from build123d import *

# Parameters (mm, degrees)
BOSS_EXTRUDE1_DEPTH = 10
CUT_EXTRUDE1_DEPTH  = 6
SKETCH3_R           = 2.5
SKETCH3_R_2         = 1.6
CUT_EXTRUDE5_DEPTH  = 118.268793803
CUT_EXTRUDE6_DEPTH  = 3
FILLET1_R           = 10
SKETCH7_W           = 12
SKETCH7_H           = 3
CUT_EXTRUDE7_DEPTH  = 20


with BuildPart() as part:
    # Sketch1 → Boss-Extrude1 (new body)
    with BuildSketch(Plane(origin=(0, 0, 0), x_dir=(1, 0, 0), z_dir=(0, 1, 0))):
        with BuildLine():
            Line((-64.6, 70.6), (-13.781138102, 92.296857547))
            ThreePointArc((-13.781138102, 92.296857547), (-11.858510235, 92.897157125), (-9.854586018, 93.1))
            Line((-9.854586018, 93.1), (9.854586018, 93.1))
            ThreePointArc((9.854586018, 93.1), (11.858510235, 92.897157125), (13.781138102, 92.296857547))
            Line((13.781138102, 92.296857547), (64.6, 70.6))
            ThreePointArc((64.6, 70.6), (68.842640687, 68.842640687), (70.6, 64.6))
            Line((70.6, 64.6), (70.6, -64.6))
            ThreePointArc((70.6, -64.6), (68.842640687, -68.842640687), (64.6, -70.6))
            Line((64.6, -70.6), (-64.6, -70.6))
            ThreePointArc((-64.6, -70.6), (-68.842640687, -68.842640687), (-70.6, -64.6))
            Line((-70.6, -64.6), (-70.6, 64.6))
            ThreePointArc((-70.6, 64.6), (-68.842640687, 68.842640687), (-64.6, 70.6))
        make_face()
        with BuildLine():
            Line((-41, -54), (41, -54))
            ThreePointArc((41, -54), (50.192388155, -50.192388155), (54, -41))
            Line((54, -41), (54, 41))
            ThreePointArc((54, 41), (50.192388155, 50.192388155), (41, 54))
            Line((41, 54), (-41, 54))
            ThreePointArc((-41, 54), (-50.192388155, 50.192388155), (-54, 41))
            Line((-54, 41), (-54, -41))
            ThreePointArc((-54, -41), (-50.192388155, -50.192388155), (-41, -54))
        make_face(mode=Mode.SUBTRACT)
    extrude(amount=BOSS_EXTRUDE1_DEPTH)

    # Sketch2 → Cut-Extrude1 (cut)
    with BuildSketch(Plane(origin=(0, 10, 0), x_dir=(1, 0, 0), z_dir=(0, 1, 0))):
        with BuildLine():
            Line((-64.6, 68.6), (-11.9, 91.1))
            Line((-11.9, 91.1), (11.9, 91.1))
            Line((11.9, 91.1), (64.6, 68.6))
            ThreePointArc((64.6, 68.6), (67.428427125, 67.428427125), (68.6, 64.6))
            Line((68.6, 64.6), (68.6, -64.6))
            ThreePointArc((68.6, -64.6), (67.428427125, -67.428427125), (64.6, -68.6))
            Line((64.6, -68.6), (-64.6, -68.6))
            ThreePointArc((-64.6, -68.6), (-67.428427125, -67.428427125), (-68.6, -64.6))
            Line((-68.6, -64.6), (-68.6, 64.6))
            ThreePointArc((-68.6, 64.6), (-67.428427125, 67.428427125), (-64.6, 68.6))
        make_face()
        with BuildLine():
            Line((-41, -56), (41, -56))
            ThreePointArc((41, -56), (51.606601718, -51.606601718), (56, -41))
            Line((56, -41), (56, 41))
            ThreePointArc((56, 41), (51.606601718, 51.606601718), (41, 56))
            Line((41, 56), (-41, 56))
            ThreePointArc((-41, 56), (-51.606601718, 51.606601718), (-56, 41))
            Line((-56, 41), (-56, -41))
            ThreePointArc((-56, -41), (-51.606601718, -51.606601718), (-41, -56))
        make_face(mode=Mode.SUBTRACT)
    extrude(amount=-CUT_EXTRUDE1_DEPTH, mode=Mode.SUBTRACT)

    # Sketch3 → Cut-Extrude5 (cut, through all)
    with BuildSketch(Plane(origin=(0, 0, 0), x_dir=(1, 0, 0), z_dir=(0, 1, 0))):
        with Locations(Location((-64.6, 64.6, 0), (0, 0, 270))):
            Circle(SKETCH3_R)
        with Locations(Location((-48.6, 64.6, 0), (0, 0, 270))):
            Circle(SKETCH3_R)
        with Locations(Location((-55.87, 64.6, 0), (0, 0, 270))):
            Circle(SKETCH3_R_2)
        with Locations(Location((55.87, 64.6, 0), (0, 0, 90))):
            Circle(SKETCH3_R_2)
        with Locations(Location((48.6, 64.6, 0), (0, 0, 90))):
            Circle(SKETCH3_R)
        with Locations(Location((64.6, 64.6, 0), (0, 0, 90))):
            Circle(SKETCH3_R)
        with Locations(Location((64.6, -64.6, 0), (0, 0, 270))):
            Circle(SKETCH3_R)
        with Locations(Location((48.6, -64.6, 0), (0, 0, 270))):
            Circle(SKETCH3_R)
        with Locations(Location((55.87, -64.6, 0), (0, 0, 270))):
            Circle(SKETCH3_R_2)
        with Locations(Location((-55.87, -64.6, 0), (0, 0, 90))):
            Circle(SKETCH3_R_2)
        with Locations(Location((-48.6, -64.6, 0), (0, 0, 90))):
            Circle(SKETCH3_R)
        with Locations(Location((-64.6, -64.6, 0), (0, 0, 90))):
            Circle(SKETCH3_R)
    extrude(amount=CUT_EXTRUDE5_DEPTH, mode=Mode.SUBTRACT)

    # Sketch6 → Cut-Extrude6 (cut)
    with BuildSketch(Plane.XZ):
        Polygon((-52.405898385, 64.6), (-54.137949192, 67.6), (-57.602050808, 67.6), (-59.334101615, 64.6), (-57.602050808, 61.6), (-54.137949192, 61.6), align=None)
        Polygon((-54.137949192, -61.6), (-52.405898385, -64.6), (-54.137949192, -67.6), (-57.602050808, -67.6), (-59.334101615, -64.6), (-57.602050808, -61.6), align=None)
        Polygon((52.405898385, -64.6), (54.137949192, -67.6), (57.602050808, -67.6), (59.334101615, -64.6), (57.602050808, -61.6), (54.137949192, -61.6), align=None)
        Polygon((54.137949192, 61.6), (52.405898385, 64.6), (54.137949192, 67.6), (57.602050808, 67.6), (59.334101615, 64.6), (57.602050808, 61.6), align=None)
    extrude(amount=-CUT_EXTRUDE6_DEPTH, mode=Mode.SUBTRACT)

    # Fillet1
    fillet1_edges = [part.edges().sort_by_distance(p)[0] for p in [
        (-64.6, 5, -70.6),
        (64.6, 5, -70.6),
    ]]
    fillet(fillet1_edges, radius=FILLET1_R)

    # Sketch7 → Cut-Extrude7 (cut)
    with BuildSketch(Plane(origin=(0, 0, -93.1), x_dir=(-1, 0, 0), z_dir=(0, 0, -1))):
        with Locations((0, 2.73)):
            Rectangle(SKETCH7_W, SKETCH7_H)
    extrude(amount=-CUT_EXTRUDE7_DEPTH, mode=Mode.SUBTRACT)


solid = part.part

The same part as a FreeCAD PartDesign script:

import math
import FreeCAD as App
import Part
import Sketcher
Q = App.Units.Quantity


def edges_at(feature, points):
    """Names of the edges that pass closest to the given points."""
    edges = feature.Shape.Edges
    near = lambda p: min(range(len(edges)), key=lambda i: edges[i].distToShape(Part.Vertex(*p))[0])
    return sorted({f"Edge{near(p) + 1}" for p in points})


def add_polygon(sketch, points):
    """Adds a closed chain of lines whose ends are joined by coincident constraints."""
    first, n = sketch.GeometryCount, len(points)
    for a, b in zip(points, points[1:] + points[:1]):
        sketch.addGeometry(Part.LineSegment(App.Vector(*a, 0), App.Vector(*b, 0)), False)
    for i in range(n):
        sketch.addConstraint(Sketcher.Constraint("Coincident", first + i, 2, first + (i + 1) % n, 1))

doc = App.newDocument("Part")
params = doc.addObject("Spreadsheet::Sheet", "Params")
for row, (alias, value) in enumerate([
    ("sketch1_radius", "6 mm"),
    ("sketch1_radius2", "10 mm"),
    ("sketch1_radius3", "13 mm"),
    ("sketch1_width", "82 mm"),
    ("sketch1_width2", "129.2 mm"),
    ("pad1_length", "10 mm"),
    ("sketch2_radius", "4 mm"),
    ("sketch2_radius2", "15 mm"),
    ("sketch2_width", "82 mm"),
    ("sketch2_width2", "129.2 mm"),
    ("sketch2_width3", "23.8 mm"),
    ("pocket1_length", "6 mm"),
    ("sketch3_diameter", "5 mm"),
    ("sketch3_diameter2", "3.2 mm"),
    ("pocket3_length", "3 mm"),
    ("fillet_radius", "10 mm"),
    ("sketch5_width", "12 mm"),
    ("sketch5_height", "3 mm"),
    ("pocket4_length", "20 mm"),
], start=1):
    params.set(f"A{row}", alias)
    params.set(f"B{row}", "=" + value)
    params.setAlias(f"B{row}", alias)

body = doc.addObject("PartDesign::Body", "Body")

# Sketch on XZ plane
sketch1 = doc.addObject("Sketcher::SketchObject", "Sketch")
body.addObject(sketch1)
sketch1.AttachmentSupport = (doc.XZ_Plane, [""])
sketch1.MapMode = "FlatFace"
sketch1.addGeometry([
    Part.LineSegment(App.Vector(-13.781138, -92.296858, 0), App.Vector(-64.6, -70.6, 0)),  # 0
    Part.ArcOfCircle(Part.Circle(App.Vector(-64.6, -64.6, 0), App.Vector(0, 0, 1), 6), math.radians(180), math.radians(270)),  # 1
    Part.LineSegment(App.Vector(-70.6, -64.6, 0), App.Vector(-70.6, 64.6, 0)),  # 2
    Part.ArcOfCircle(Part.Circle(App.Vector(-64.6, 64.6, 0), App.Vector(0, 0, 1), 6), math.radians(90), math.radians(180)),  # 3
    Part.LineSegment(App.Vector(-64.6, 70.6, 0), App.Vector(64.6, 70.6, 0)),  # 4
    Part.ArcOfCircle(Part.Circle(App.Vector(64.6, 64.6, 0), App.Vector(0, 0, 1), 6), math.radians(0), math.radians(90)),  # 5
    Part.LineSegment(App.Vector(70.6, 64.6, 0), App.Vector(70.6, -64.6, 0)),  # 6
    Part.ArcOfCircle(Part.Circle(App.Vector(64.6, -64.6, 0), App.Vector(0, 0, 1), 6), math.radians(-90), math.radians(0)),  # 7
    Part.LineSegment(App.Vector(64.6, -70.6, 0), App.Vector(13.781138, -92.296858, 0)),  # 8
    Part.ArcOfCircle(Part.Circle(App.Vector(9.854586, -83.1, 0), App.Vector(0, 0, 1), 10), math.radians(-90), math.radians(-66.880185)),  # 9
    Part.LineSegment(App.Vector(9.854586, -93.1, 0), App.Vector(-9.854586, -93.1, 0)),  # 10
    Part.ArcOfCircle(Part.Circle(App.Vector(-9.854586, -83.1, 0), App.Vector(0, 0, 1), 10), math.radians(-113.119815), math.radians(-90)),  # 11
    Part.ArcOfCircle(Part.Circle(App.Vector(-41, 41, 0), App.Vector(0, 0, 1), 13), math.radians(90), math.radians(180)),  # 12
    Part.LineSegment(App.Vector(-54, 41, 0), App.Vector(-54, -41, 0)),  # 13
    Part.ArcOfCircle(Part.Circle(App.Vector(-41, -41, 0), App.Vector(0, 0, 1), 13), math.radians(-180), math.radians(-90)),  # 14
    Part.LineSegment(App.Vector(-41, -54, 0), App.Vector(41, -54, 0)),  # 15
    Part.ArcOfCircle(Part.Circle(App.Vector(41, -41, 0), App.Vector(0, 0, 1), 13), math.radians(-90), math.radians(0)),  # 16
    Part.LineSegment(App.Vector(54, -41, 0), App.Vector(54, 41, 0)),  # 17
    Part.ArcOfCircle(Part.Circle(App.Vector(41, 41, 0), App.Vector(0, 0, 1), 13), math.radians(0), math.radians(90)),  # 18
    Part.LineSegment(App.Vector(41, 54, 0), App.Vector(-41, 54, 0)),  # 19
], False)
sketch1.addConstraint([
    Sketcher.Constraint("Coincident", 0, 2, 1, 2),
    Sketcher.Constraint("Tangent", 1, 1, 2, 1),
    Sketcher.Constraint("Tangent", 2, 2, 3, 2),
    Sketcher.Constraint("Tangent", 3, 1, 4, 1),
    Sketcher.Constraint("Tangent", 4, 2, 5, 2),
    Sketcher.Constraint("Tangent", 5, 1, 6, 1),
    Sketcher.Constraint("Tangent", 6, 2, 7, 2),
    Sketcher.Constraint("Coincident", 7, 1, 8, 1),
    Sketcher.Constraint("Tangent", 8, 2, 9, 2),
    Sketcher.Constraint("Tangent", 9, 1, 10, 1),
    Sketcher.Constraint("Tangent", 10, 2, 11, 2),
    Sketcher.Constraint("Tangent", 11, 1, 0, 1),
    Sketcher.Constraint("Tangent", 12, 2, 13, 1),
    Sketcher.Constraint("Tangent", 13, 2, 14, 1),
    Sketcher.Constraint("Tangent", 14, 2, 15, 1),
    Sketcher.Constraint("Tangent", 15, 2, 16, 1),
    Sketcher.Constraint("Tangent", 16, 2, 17, 1),
    Sketcher.Constraint("Tangent", 17, 2, 18, 1),
    Sketcher.Constraint("Tangent", 18, 2, 19, 1),
    Sketcher.Constraint("Tangent", 19, 2, 12, 1),
    Sketcher.Constraint("Vertical", 2),
    Sketcher.Constraint("Horizontal", 4),
    Sketcher.Constraint("Vertical", 6),
    Sketcher.Constraint("Horizontal", 10),
    Sketcher.Constraint("Vertical", 13),
    Sketcher.Constraint("Horizontal", 15),
    Sketcher.Constraint("Vertical", 17),
    Sketcher.Constraint("Horizontal", 19),
    Sketcher.Constraint("Equal", 1, 3),
    Sketcher.Constraint("Equal", 3, 5),
    Sketcher.Constraint("Equal", 5, 7),
    Sketcher.Constraint("Equal", 9, 11),
    Sketcher.Constraint("Equal", 12, 14),
    Sketcher.Constraint("Equal", 14, 16),
    Sketcher.Constraint("Equal", 16, 18),
    Sketcher.Constraint("Symmetric", 1, 3, 5, 3, -1, 1),
    Sketcher.Constraint("Symmetric", 12, 3, 16, 3, -1, 1),
    Sketcher.Constraint("Symmetric", 3, 1, 7, 1, -1, 1),
    Sketcher.Constraint("Symmetric", 8, 2, 11, 1, -2),
    Sketcher.Constraint("Equal", 4, 2),
    Sketcher.Constraint("Equal", 19, 13),
    Sketcher.Constraint("Radius", 1, 6.0),
    Sketcher.Constraint("Radius", 9, 10.0),
    Sketcher.Constraint("Radius", 12, 13.0),
    Sketcher.Constraint("DistanceX", 15, 1, 15, 2, 82.0),
    Sketcher.Constraint("DistanceX", 4, 1, 4, 2, 129.2),
    Sketcher.Constraint("DistanceY", 9, 3, -1, 1, 83.1),
    Sketcher.Constraint("DistanceX", 10, 2, 10, 1, 19.709172),
])
sketch1.setExpression("Constraints[41]", "Params.sketch1_radius")
sketch1.setExpression("Constraints[42]", "Params.sketch1_radius2")
sketch1.setExpression("Constraints[43]", "Params.sketch1_radius3")
sketch1.setExpression("Constraints[44]", "Params.sketch1_width")
sketch1.setExpression("Constraints[45]", "Params.sketch1_width2")
pad1 = doc.addObject("PartDesign::Pad", "Pad")
body.addObject(pad1)
pad1.Profile = sketch1
pad1.setExpression("Length", "Params.pad1_length")
pad1.Reversed = True

# Sketch on XZ plane
sketch2 = doc.addObject("Sketcher::SketchObject", "Sketch001")
body.addObject(sketch2)
sketch2.AttachmentSupport = (doc.XZ_Plane, [""])
sketch2.MapMode = "FlatFace"
sketch2.AttachmentOffset = App.Placement(App.Vector(0, 0, -10), App.Rotation())
sketch2.addGeometry([
    Part.LineSegment(App.Vector(-11.9, -91.1, 0), App.Vector(-64.6, -68.6, 0)),  # 0
    Part.ArcOfCircle(Part.Circle(App.Vector(-64.6, -64.6, 0), App.Vector(0, 0, 1), 4), math.radians(180), math.radians(270)),  # 1
    Part.LineSegment(App.Vector(-68.6, -64.6, 0), App.Vector(-68.6, 64.6, 0)),  # 2
    Part.ArcOfCircle(Part.Circle(App.Vector(-64.6, 64.6, 0), App.Vector(0, 0, 1), 4), math.radians(90), math.radians(180)),  # 3
    Part.LineSegment(App.Vector(-64.6, 68.6, 0), App.Vector(64.6, 68.6, 0)),  # 4
    Part.ArcOfCircle(Part.Circle(App.Vector(64.6, 64.6, 0), App.Vector(0, 0, 1), 4), math.radians(0), math.radians(90)),  # 5
    Part.LineSegment(App.Vector(68.6, 64.6, 0), App.Vector(68.6, -64.6, 0)),  # 6
    Part.ArcOfCircle(Part.Circle(App.Vector(64.6, -64.6, 0), App.Vector(0, 0, 1), 4), math.radians(-90), math.radians(0)),  # 7
    Part.LineSegment(App.Vector(64.6, -68.6, 0), App.Vector(11.9, -91.1, 0)),  # 8
    Part.LineSegment(App.Vector(11.9, -91.1, 0), App.Vector(-11.9, -91.1, 0)),  # 9
    Part.ArcOfCircle(Part.Circle(App.Vector(-41, 41, 0), App.Vector(0, 0, 1), 15), math.radians(90), math.radians(180)),  # 10
    Part.LineSegment(App.Vector(-56, 41, 0), App.Vector(-56, -41, 0)),  # 11
    Part.ArcOfCircle(Part.Circle(App.Vector(-41, -41, 0), App.Vector(0, 0, 1), 15), math.radians(180), math.radians(270)),  # 12
    Part.LineSegment(App.Vector(-41, -56, 0), App.Vector(41, -56, 0)),  # 13
    Part.ArcOfCircle(Part.Circle(App.Vector(41, -41, 0), App.Vector(0, 0, 1), 15), math.radians(-90), math.radians(0)),  # 14
    Part.LineSegment(App.Vector(56, -41, 0), App.Vector(56, 41, 0)),  # 15
    Part.ArcOfCircle(Part.Circle(App.Vector(41, 41, 0), App.Vector(0, 0, 1), 15), math.radians(0), math.radians(90)),  # 16
    Part.LineSegment(App.Vector(41, 56, 0), App.Vector(-41, 56, 0)),  # 17
], False)
sketch2.addConstraint([
    Sketcher.Constraint("Coincident", 0, 2, 1, 2),
    Sketcher.Constraint("Tangent", 1, 1, 2, 1),
    Sketcher.Constraint("Tangent", 2, 2, 3, 2),
    Sketcher.Constraint("Tangent", 3, 1, 4, 1),
    Sketcher.Constraint("Tangent", 4, 2, 5, 2),
    Sketcher.Constraint("Tangent", 5, 1, 6, 1),
    Sketcher.Constraint("Tangent", 6, 2, 7, 2),
    Sketcher.Constraint("Coincident", 7, 1, 8, 1),
    Sketcher.Constraint("Coincident", 8, 2, 9, 1),
    Sketcher.Constraint("Coincident", 9, 2, 0, 1),
    Sketcher.Constraint("Tangent", 10, 2, 11, 1),
    Sketcher.Constraint("Tangent", 11, 2, 12, 1),
    Sketcher.Constraint("Tangent", 12, 2, 13, 1),
    Sketcher.Constraint("Tangent", 13, 2, 14, 1),
    Sketcher.Constraint("Tangent", 14, 2, 15, 1),
    Sketcher.Constraint("Tangent", 15, 2, 16, 1),
    Sketcher.Constraint("Tangent", 16, 2, 17, 1),
    Sketcher.Constraint("Tangent", 17, 2, 10, 1),
    Sketcher.Constraint("Vertical", 2),
    Sketcher.Constraint("Horizontal", 4),
    Sketcher.Constraint("Vertical", 6),
    Sketcher.Constraint("Horizontal", 9),
    Sketcher.Constraint("Vertical", 11),
    Sketcher.Constraint("Horizontal", 13),
    Sketcher.Constraint("Vertical", 15),
    Sketcher.Constraint("Horizontal", 17),
    Sketcher.Constraint("Equal", 1, 3),
    Sketcher.Constraint("Equal", 3, 5),
    Sketcher.Constraint("Equal", 5, 7),
    Sketcher.Constraint("Equal", 10, 12),
    Sketcher.Constraint("Equal", 12, 14),
    Sketcher.Constraint("Equal", 14, 16),
    Sketcher.Constraint("Symmetric", 1, 3, 5, 3, -1, 1),
    Sketcher.Constraint("Symmetric", 10, 3, 14, 3, -1, 1),
    Sketcher.Constraint("Symmetric", 3, 1, 7, 1, -1, 1),
    Sketcher.Constraint("Vertical", 3, 3, 0, 2),
    Sketcher.Constraint("Equal", 4, 2),
    Sketcher.Constraint("Equal", 17, 11),
    Sketcher.Constraint("Equal", 0, 8),
    Sketcher.Constraint("Radius", 1, 4.0),
    Sketcher.Constraint("Radius", 10, 15.0),
    Sketcher.Constraint("DistanceX", 13, 1, 13, 2, 82.0),
    Sketcher.Constraint("DistanceX", 4, 1, 4, 2, 129.2),
    Sketcher.Constraint("DistanceX", 9, 2, 9, 1, 23.8),
    Sketcher.Constraint("DistanceY", 8, 2, -1, 1, 91.1),
])
sketch2.setExpression("Constraints[39]", "Params.sketch2_radius")
sketch2.setExpression("Constraints[40]", "Params.sketch2_radius2")
sketch2.setExpression("Constraints[41]", "Params.sketch2_width")
sketch2.setExpression("Constraints[42]", "Params.sketch2_width2")
sketch2.setExpression("Constraints[43]", "Params.sketch2_width3")
pocket1 = doc.addObject("PartDesign::Pocket", "Pocket")
body.addObject(pocket1)
pocket1.Profile = sketch2
pocket1.setExpression("Length", "Params.pocket1_length")
pocket1.Reversed = True

# Sketch on XZ plane
sketch3 = doc.addObject("Sketcher::SketchObject", "Sketch002")
body.addObject(sketch3)
sketch3.AttachmentSupport = (doc.XZ_Plane, [""])
sketch3.MapMode = "FlatFace"
sketch3.addGeometry([
    Part.Circle(App.Vector(-64.6, -64.6, 0), App.Vector(0, 0, 1), 2.5),  # 0
    Part.Circle(App.Vector(-48.6, -64.6, 0), App.Vector(0, 0, 1), 2.5),  # 1
    Part.Circle(App.Vector(-55.87, -64.6, 0), App.Vector(0, 0, 1), 1.6),  # 2
    Part.Circle(App.Vector(55.87, -64.6, 0), App.Vector(0, 0, 1), 1.6),  # 3
    Part.Circle(App.Vector(48.6, -64.6, 0), App.Vector(0, 0, 1), 2.5),  # 4
    Part.Circle(App.Vector(64.6, -64.6, 0), App.Vector(0, 0, 1), 2.5),  # 5
    Part.Circle(App.Vector(64.6, 64.6, 0), App.Vector(0, 0, 1), 2.5),  # 6
    Part.Circle(App.Vector(48.6, 64.6, 0), App.Vector(0, 0, 1), 2.5),  # 7
    Part.Circle(App.Vector(55.87, 64.6, 0), App.Vector(0, 0, 1), 1.6),  # 8
    Part.Circle(App.Vector(-55.87, 64.6, 0), App.Vector(0, 0, 1), 1.6),  # 9
    Part.Circle(App.Vector(-48.6, 64.6, 0), App.Vector(0, 0, 1), 2.5),  # 10
    Part.Circle(App.Vector(-64.6, 64.6, 0), App.Vector(0, 0, 1), 2.5),  # 11
], False)
sketch3.addConstraint([
    Sketcher.Constraint("Equal", 0, 1),
    Sketcher.Constraint("Equal", 2, 3),
    Sketcher.Constraint("Equal", 1, 4),
    Sketcher.Constraint("Equal", 4, 5),
    Sketcher.Constraint("Equal", 5, 6),
    Sketcher.Constraint("Equal", 6, 7),
    Sketcher.Constraint("Equal", 3, 8),
    Sketcher.Constraint("Equal", 8, 9),
    Sketcher.Constraint("Equal", 7, 10),
    Sketcher.Constraint("Equal", 10, 11),
    Sketcher.Constraint("Symmetric", 0, 3, 6, 3, -1, 1),
    Sketcher.Constraint("Symmetric", 1, 3, 7, 3, -1, 1),
    Sketcher.Constraint("Symmetric", 2, 3, 8, 3, -1, 1),
    Sketcher.Constraint("Symmetric", 3, 3, 9, 3, -1, 1),
    Sketcher.Constraint("Symmetric", 4, 3, 10, 3, -1, 1),
    Sketcher.Constraint("Symmetric", 5, 3, 11, 3, -1, 1),
    Sketcher.Constraint("Symmetric", 2, 3, 3, 3, -2),
    Sketcher.Constraint("Symmetric", 1, 3, 4, 3, -2),
    Sketcher.Constraint("Symmetric", 0, 3, 5, 3, -2),
    Sketcher.Constraint("Horizontal", 0, 3, 1, 3),
    Sketcher.Constraint("Horizontal", 1, 3, 2, 3),
    Sketcher.Constraint("Diameter", 0, 5.0),
    Sketcher.Constraint("Diameter", 2, 3.2),
    Sketcher.Constraint("DistanceX", 0, 3, 1, 3, 16.0),
    Sketcher.Constraint("DistanceX", 0, 3, -1, 1, 64.6),
    Sketcher.Constraint("DistanceY", 0, 3, -1, 1, 64.6),
    Sketcher.Constraint("DistanceX", 2, 3, -1, 1, 55.87),
])
sketch3.setExpression("Constraints[21]", "Params.sketch3_diameter")
sketch3.setExpression("Constraints[22]", "Params.sketch3_diameter2")
pocket2 = doc.addObject("PartDesign::Pocket", "Pocket001")
body.addObject(pocket2)
pocket2.Profile = sketch3
pocket2.Type = "ThroughAll"

# Sketch on XZ plane
sketch4 = doc.addObject("Sketcher::SketchObject", "Sketch003")
body.addObject(sketch4)
sketch4.AttachmentSupport = (doc.XZ_Plane, [""])
sketch4.MapMode = "FlatFace"
add_polygon(sketch4, [(-52.405898, 64.6), (-54.137949, 67.6), (-57.602051, 67.6), (-59.334102, 64.6), (-57.602051, 61.6), (-54.137949, 61.6)])  # lines 0-5
add_polygon(sketch4, [(-52.405898, -64.6), (-54.137949, -61.6), (-57.602051, -61.6), (-59.334102, -64.6), (-57.602051, -67.6), (-54.137949, -67.6)])  # lines 6-11
add_polygon(sketch4, [(52.405898, -64.6), (54.137949, -67.6), (57.602051, -67.6), (59.334102, -64.6), (57.602051, -61.6), (54.137949, -61.6)])  # lines 12-17
add_polygon(sketch4, [(52.405898, 64.6), (54.137949, 61.6), (57.602051, 61.6), (59.334102, 64.6), (57.602051, 67.6), (54.137949, 67.6)])  # lines 18-23
sketch4.addConstraint([
    Sketcher.Constraint("Horizontal", 1),
    Sketcher.Constraint("Horizontal", 4),
    Sketcher.Constraint("Horizontal", 7),
    Sketcher.Constraint("Horizontal", 10),
    Sketcher.Constraint("Horizontal", 13),
    Sketcher.Constraint("Horizontal", 16),
    Sketcher.Constraint("Horizontal", 19),
    Sketcher.Constraint("Horizontal", 22),
    Sketcher.Constraint("Symmetric", 0, 2, 12, 2, -1, 1),
    Sketcher.Constraint("Symmetric", 2, 2, 14, 2, -1, 1),
    Sketcher.Constraint("Symmetric", 3, 2, 15, 2, -1, 1),
    Sketcher.Constraint("Symmetric", 5, 2, 17, 2, -1, 1),
    Sketcher.Constraint("Symmetric", 6, 2, 18, 2, -1, 1),
    Sketcher.Constraint("Symmetric", 8, 2, 20, 2, -1, 1),
    Sketcher.Constraint("Symmetric", 9, 2, 21, 2, -1, 1),
    Sketcher.Constraint("Symmetric", 11, 2, 23, 2, -1, 1),
    Sketcher.Constraint("Symmetric", 10, 2, 12, 2, -2),
    Sketcher.Constraint("Symmetric", 8, 2, 14, 2, -2),
    Sketcher.Constraint("Symmetric", 7, 2, 15, 2, -2),
    Sketcher.Constraint("Symmetric", 11, 2, 17, 2, -2),
    Sketcher.Constraint("Parallel", 0, 3),
    Sketcher.Constraint("Parallel", 2, 5),
    Sketcher.Constraint("Parallel", 3, 6),
    Sketcher.Constraint("Parallel", 5, 8),
    Sketcher.Constraint("Parallel", 6, 9),
    Sketcher.Constraint("Parallel", 11, 14),
    Sketcher.Constraint("Parallel", 14, 17),
    Sketcher.Constraint("Parallel", 17, 20),
    Sketcher.Constraint("Parallel", 20, 23),
    Sketcher.Constraint("Horizontal", 2, 2, 5, 2),
    Sketcher.Constraint("Vertical", 1, 2, 3, 2),
    Sketcher.Constraint("Angle", 0, Q("120 deg")),
    Sketcher.Constraint("DistanceY", 2, 2, 1, 2, 3.0),
    Sketcher.Constraint("DistanceY", -1, 1, 0, 2, 67.6),
    Sketcher.Constraint("DistanceX", 9, 2, 12, 2, 111.74),
    Sketcher.Constraint("DistanceX", 1, 2, 1, 1, 3.464102),
])
pocket3 = doc.addObject("PartDesign::Pocket", "Pocket002")
body.addObject(pocket3)
pocket3.Profile = sketch4
pocket3.setExpression("Length", "Params.pocket3_length")
doc.recompute()

fillet = doc.addObject("PartDesign::Fillet", "Fillet")
body.addObject(fillet)
fillet.Base = (pocket3, edges_at(pocket3, [(-64.6, 5, -70.6), (64.6, 5, -70.6)]))
fillet.setExpression("Radius", "Params.fillet_radius")

# Sketch on XY plane
sketch5 = doc.addObject("Sketcher::SketchObject", "Sketch004")
body.addObject(sketch5)
sketch5.AttachmentSupport = (doc.XY_Plane, [""])
sketch5.MapMode = "FlatFace"
sketch5.AttachmentOffset = App.Placement(App.Vector(0, 0, -93.1), App.Rotation())
add_polygon(sketch5, [(6, 4.23), (6, 1.23), (-6, 1.23), (-6, 4.23)])  # lines 0-3
sketch5.addConstraint([
    Sketcher.Constraint("Vertical", 0),
    Sketcher.Constraint("Horizontal", 1),
    Sketcher.Constraint("Vertical", 2),
    Sketcher.Constraint("Horizontal", 3),
    Sketcher.Constraint("DistanceX", 1, 2, 1, 1, 12.0),
    Sketcher.Constraint("DistanceY", 0, 2, 0, 1, 3.0),
    Sketcher.Constraint("DistanceX", -1, 1, 0, 2, 6.0),
    Sketcher.Constraint("DistanceY", -1, 1, 0, 2, 1.23),
])
sketch5.setExpression("Constraints[8]", "Params.sketch5_width")
sketch5.setExpression("Constraints[9]", "Params.sketch5_height")
pocket4 = doc.addObject("PartDesign::Pocket", "Pocket003")
body.addObject(pocket4)
pocket4.Profile = sketch5
pocket4.setExpression("Length", "Params.pocket4_length")
pocket4.Reversed = True

doc.recompute()
